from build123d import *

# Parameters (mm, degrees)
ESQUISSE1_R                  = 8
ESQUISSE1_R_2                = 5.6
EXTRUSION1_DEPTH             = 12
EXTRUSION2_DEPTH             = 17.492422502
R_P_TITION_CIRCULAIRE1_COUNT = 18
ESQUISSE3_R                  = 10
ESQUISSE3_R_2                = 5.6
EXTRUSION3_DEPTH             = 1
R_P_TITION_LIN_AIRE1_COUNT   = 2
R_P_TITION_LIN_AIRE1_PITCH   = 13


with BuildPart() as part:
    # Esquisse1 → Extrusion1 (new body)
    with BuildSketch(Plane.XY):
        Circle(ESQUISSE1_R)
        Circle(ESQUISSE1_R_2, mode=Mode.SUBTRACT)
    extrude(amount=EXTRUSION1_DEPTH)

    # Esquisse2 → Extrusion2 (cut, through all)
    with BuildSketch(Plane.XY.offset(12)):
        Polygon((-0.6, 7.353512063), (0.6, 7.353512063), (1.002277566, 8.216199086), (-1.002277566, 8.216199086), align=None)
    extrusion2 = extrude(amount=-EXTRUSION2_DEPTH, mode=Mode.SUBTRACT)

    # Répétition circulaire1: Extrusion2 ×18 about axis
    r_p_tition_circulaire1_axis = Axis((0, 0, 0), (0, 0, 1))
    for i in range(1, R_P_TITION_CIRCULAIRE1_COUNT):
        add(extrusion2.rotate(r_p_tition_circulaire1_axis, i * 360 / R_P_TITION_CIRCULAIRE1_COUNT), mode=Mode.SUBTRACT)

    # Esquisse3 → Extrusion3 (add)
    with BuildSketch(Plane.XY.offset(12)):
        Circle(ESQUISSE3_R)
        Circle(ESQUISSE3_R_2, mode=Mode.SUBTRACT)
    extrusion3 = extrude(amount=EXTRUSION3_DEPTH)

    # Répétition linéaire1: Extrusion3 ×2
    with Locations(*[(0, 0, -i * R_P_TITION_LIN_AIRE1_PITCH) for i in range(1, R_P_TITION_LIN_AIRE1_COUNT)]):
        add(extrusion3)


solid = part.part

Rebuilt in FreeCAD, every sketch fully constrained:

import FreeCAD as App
import Part
import Sketcher

V = App.Vector
Q = App.Units.Quantity

doc = App.newDocument("Part")
body = doc.addObject("PartDesign::Body", "Body")

# Sketch on XY plane
sketch1 = body.newObject("Sketcher::SketchObject", "Sketch")
sketch1.AttachmentSupport = (doc.getObject("XY_Plane"), [""])
sketch1.MapMode = "FlatFace"
sketch1.addGeometry([
    Part.Circle(V(0, 0, 0), V(0, 0, 1), 8),
    Part.Circle(V(0, 0, 0), V(0, 0, 1), 5.6),
], False)
sketch1.addConstraint([
    Sketcher.Constraint("Coincident", 0, 3, -1, 1),
    Sketcher.Constraint("Coincident", 1, 3, -1, 1),
    Sketcher.Constraint("Diameter", 0, Q("16 mm")),
    Sketcher.Constraint("Diameter", 1, Q("11.2 mm")),
])
pad1 = body.newObject("PartDesign::Pad", "Pad")
pad1.Profile = sketch1
pad1.Length = 12

# Sketch on XY plane
sketch2 = body.newObject("Sketcher::SketchObject", "Sketch001")
sketch2.AttachmentSupport = (doc.getObject("XY_Plane"), [""])
sketch2.MapMode = "FlatFace"
sketch2.AttachmentOffset = App.Placement(V(0, 0, 12), App.Rotation())
sketch2.addGeometry([
    Part.LineSegment(V(-0.6, 7.353512, 0), V(0.6, 7.353512, 0)),
    Part.LineSegment(V(0.6, 7.353512, 0), V(1.002278, 8.216199, 0)),
    Part.LineSegment(V(1.002278, 8.216199, 0), V(-1.002278, 8.216199, 0)),
    Part.LineSegment(V(-1.002278, 8.216199, 0), V(-0.6, 7.353512, 0)),
], False)
sketch2.addConstraint([
    Sketcher.Constraint("Coincident", 0, 2, 1, 1),
    Sketcher.Constraint("Coincident", 1, 2, 2, 1),
    Sketcher.Constraint("Coincident", 2, 2, 3, 1),
    Sketcher.Constraint("Coincident", 3, 2, 0, 1),
    Sketcher.Constraint("Horizontal", 0),
    Sketcher.Constraint("Horizontal", 2),
    Sketcher.Constraint("Equal", 1, 3),
    Sketcher.Constraint("Angle", 1, Q("65 deg")),
    Sketcher.Constraint("DistanceX", 0, 1, 0, 2, Q("1.2 mm")),
    Sketcher.Constraint("DistanceX", -1, 1, 0, 2, Q("0.6 mm")),
    Sketcher.Constraint("DistanceY", -1, 1, 1, 2, Q("8.216199 mm")),
    Sketcher.Constraint("Distance", 1, Q("0.95187 mm")),
])
pocket1 = body.newObject("PartDesign::Pocket", "Pocket")
pocket1.Profile = sketch2
pocket1.Type = "ThroughAll"
doc.recompute()

polarpattern = body.newObject("PartDesign::PolarPattern", "PolarPattern")
polarpattern.Originals = [pocket1]
polarpattern.Axis = (doc.getObject("Z_Axis"), [""])
polarpattern.Angle = 360
polarpattern.Occurrences = 18
body.Tip = polarpattern

# Sketch on XY plane
sketch3 = body.newObject("Sketcher::SketchObject", "Sketch002")
sketch3.AttachmentSupport = (doc.getObject("XY_Plane"), [""])
sketch3.MapMode = "FlatFace"
sketch3.AttachmentOffset = App.Placement(V(0, 0, 12), App.Rotation())
sketch3.addGeometry([
    Part.Circle(V(0, 0, 0), V(0, 0, 1), 10),
    Part.Circle(V(0, 0, 0), V(0, 0, 1), 5.6),
], False)
sketch3.addConstraint([
    Sketcher.Constraint("Coincident", 0, 3, -1, 1),
    Sketcher.Constraint("Coincident", 1, 3, -1, 1),
    Sketcher.Constraint("Diameter", 0, Q("20 mm")),
    Sketcher.Constraint("Diameter", 1, Q("11.2 mm")),
])
pad2 = body.newObject("PartDesign::Pad", "Pad001")
pad2.Profile = sketch3
pad2.Length = 1
doc.recompute()

linearpattern = body.newObject("PartDesign::LinearPattern", "LinearPattern")
linearpattern.Originals = [pad2]
linearpattern.Direction = (doc.getObject("Z_Axis"), [""])
linearpattern.Mode = "offset"
linearpattern.Offset = 13
linearpattern.Occurrences = 2
linearpattern.Reversed = True
body.Tip = linearpattern

doc.recompute()
